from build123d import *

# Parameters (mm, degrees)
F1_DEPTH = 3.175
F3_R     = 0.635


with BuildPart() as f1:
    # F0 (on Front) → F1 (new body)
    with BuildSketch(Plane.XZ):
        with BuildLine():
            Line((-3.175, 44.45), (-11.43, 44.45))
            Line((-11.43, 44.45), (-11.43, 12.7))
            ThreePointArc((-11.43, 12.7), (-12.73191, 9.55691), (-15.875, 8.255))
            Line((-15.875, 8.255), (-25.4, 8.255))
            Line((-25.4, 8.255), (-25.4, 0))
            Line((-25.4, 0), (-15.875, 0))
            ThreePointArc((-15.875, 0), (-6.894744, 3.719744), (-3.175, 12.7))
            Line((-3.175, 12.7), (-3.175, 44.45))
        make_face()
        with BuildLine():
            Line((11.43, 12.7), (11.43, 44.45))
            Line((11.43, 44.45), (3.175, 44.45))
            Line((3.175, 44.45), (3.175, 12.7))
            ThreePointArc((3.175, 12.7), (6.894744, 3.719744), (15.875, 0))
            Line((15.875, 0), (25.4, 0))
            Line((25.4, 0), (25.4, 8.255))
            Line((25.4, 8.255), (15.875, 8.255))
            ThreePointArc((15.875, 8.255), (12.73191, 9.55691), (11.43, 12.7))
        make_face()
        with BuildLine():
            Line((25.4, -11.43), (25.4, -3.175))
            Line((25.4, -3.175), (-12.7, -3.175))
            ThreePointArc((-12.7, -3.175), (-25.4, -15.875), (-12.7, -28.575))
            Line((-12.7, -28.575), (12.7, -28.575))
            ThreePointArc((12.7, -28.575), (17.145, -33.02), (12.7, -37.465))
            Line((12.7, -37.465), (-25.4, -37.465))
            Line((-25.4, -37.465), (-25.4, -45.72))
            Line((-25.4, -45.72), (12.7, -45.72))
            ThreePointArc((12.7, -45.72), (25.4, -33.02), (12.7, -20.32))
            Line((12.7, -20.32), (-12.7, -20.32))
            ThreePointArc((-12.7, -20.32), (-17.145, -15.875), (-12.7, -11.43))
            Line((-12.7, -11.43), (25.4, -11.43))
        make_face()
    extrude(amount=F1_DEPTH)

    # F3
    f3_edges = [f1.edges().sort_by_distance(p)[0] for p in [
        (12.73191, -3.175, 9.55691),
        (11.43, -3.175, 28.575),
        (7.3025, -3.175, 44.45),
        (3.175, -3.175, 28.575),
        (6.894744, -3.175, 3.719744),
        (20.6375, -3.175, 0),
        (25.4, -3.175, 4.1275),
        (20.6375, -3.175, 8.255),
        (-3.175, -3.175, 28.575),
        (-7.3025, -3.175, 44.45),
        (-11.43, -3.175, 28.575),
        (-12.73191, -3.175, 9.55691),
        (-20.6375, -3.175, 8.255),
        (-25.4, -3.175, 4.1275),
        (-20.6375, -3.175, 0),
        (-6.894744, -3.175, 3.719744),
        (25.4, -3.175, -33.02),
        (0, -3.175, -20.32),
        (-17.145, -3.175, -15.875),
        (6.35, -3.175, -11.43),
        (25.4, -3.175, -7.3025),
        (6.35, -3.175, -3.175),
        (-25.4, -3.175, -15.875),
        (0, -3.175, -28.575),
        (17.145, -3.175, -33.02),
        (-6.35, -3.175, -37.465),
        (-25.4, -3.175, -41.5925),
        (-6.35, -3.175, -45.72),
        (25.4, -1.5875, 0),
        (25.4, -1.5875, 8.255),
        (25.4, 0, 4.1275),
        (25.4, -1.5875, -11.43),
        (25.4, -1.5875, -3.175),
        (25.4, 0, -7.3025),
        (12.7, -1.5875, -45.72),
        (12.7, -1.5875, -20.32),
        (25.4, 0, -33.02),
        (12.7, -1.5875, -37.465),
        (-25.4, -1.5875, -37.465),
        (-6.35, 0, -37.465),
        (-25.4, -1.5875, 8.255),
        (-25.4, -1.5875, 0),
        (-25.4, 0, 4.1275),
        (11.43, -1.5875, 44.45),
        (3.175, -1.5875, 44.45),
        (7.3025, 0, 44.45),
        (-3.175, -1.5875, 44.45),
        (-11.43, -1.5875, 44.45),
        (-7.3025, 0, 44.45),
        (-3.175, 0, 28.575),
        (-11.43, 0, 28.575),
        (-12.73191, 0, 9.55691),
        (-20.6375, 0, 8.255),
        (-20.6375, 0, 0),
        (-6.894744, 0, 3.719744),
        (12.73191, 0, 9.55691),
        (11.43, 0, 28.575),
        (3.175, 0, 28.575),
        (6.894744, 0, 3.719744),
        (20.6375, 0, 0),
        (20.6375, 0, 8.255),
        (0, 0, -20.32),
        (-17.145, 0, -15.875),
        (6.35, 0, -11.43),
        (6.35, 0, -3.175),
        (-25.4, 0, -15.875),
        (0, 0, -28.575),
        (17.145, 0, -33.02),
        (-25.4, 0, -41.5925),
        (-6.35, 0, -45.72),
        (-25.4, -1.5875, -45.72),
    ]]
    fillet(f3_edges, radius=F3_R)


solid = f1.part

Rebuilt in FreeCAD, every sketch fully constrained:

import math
import FreeCAD as App
import Part
import Sketcher
Q = App.Units.Quantity

doc = App.newDocument("Part")
body = doc.addObject("PartDesign::Body", "Body")
body.AllowCompound = True

# Sketch on XZ plane
sketch1 = body.newObject("Sketcher::SketchObject", "Sketch")
sketch1.AttachmentSupport = (doc.getObject("XZ_Plane"), [""])
sketch1.MapMode = "FlatFace"
sketch1.addGeometry([
    Part.LineSegment(App.Vector(-3.175, 44.45, 0), App.Vector(-11.43, 44.45, 0)),  # 0
    Part.LineSegment(App.Vector(-11.43, 44.45, 0), App.Vector(-11.43, 12.7, 0)),  # 1
    Part.ArcOfCircle(Part.Circle(App.Vector(-15.874999, 12.699999, 0), App.Vector(0, 0, 1), 4.444999), math.radians(-90.000016), math.radians(0.000016)),  # 2
    Part.LineSegment(App.Vector(-15.875, 8.255, 0), App.Vector(-25.4, 8.255, 0)),  # 3
    Part.LineSegment(App.Vector(-25.4, 8.255, 0), App.Vector(-25.4, 0, 0)),  # 4
    Part.LineSegment(App.Vector(-25.4, 0, 0), App.Vector(-15.875, 0, 0)),  # 5
    Part.ArcOfCircle(Part.Circle(App.Vector(-15.875, 12.7, 0), App.Vector(0, 0, 1), 12.7), math.radians(-89.999998), math.radians(-0.000002)),  # 6
    Part.LineSegment(App.Vector(-3.175, 12.7, 0), App.Vector(-3.175, 44.45, 0)),  # 7
    Part.LineSegment(App.Vector(11.43, 12.7, 0), App.Vector(11.43, 44.45, 0)),  # 8
    Part.LineSegment(App.Vector(11.43, 44.45, 0), App.Vector(3.175, 44.45, 0)),  # 9
    Part.LineSegment(App.Vector(3.175, 44.45, 0), App.Vector(3.175, 12.7, 0)),  # 10
    Part.ArcOfCircle(Part.Circle(App.Vector(15.875, 12.7, 0), App.Vector(0, 0, 1), 12.7), math.radians(-179.999998), math.radians(-90.000002)),  # 11
    Part.LineSegment(App.Vector(15.875, 0, 0), App.Vector(25.4, 0, 0)),  # 12
    Part.LineSegment(App.Vector(25.4, 0, 0), App.Vector(25.4, 8.255, 0)),  # 13
    Part.LineSegment(App.Vector(25.4, 8.255, 0), App.Vector(15.875, 8.255, 0)),  # 14
    Part.ArcOfCircle(Part.Circle(App.Vector(15.874999, 12.699999, 0), App.Vector(0, 0, 1), 4.444999), math.radians(179.999984), math.radians(270.000016)),  # 15
    Part.LineSegment(App.Vector(25.4, -11.43, 0), App.Vector(25.4, -3.175, 0)),  # 16
    Part.LineSegment(App.Vector(25.4, -3.175, 0), App.Vector(-12.7, -3.175, 0)),  # 17
    Part.ArcOfCircle(Part.Circle(App.Vector(-12.7, -15.875, 0), App.Vector(0, 0, 1), 12.7), math.radians(90), math.radians(270)),  # 18
    Part.LineSegment(App.Vector(-12.7, -28.575, 0), App.Vector(12.7, -28.575, 0)),  # 19
    Part.ArcOfCircle(Part.Circle(App.Vector(12.7, -33.02, 0), App.Vector(0, 0, 1), 4.445), math.radians(-90), math.radians(90)),  # 20
    Part.LineSegment(App.Vector(12.7, -37.465, 0), App.Vector(-25.4, -37.465, 0)),  # 21
    Part.LineSegment(App.Vector(-25.4, -37.465, 0), App.Vector(-25.4, -45.72, 0)),  # 22
    Part.LineSegment(App.Vector(-25.4, -45.72, 0), App.Vector(12.7, -45.72, 0)),  # 23
    Part.ArcOfCircle(Part.Circle(App.Vector(12.7, -33.02, 0), App.Vector(0, 0, 1), 12.7), math.radians(-90), math.radians(90)),  # 24
    Part.LineSegment(App.Vector(12.7, -20.32, 0), App.Vector(-12.7, -20.32, 0)),  # 25
    Part.ArcOfCircle(Part.Circle(App.Vector(-12.7, -15.875, 0), App.Vector(0, 0, 1), 4.445), math.radians(90), math.radians(270)),  # 26
    Part.LineSegment(App.Vector(-12.7, -11.43, 0), App.Vector(25.4, -11.43, 0)),  # 27
], False)
sketch1.addConstraint([
    Sketcher.Constraint("Coincident", 0, 2, 1, 1),
    Sketcher.Constraint("Tangent", 1, 2, 2, 2),
    Sketcher.Constraint("Tangent", 2, 1, 3, 1),
    Sketcher.Constraint("Coincident", 3, 2, 4, 1),
    Sketcher.Constraint("Coincident", 4, 2, 5, 1),
    Sketcher.Constraint("Tangent", 5, 2, 6, 1),
    Sketcher.Constraint("Tangent", 6, 2, 7, 1),
    Sketcher.Constraint("Coincident", 7, 2, 0, 1),
    Sketcher.Constraint("Coincident", 8, 2, 9, 1),
    Sketcher.Constraint("Coincident", 9, 2, 10, 1),
    Sketcher.Constraint("Tangent", 10, 2, 11, 1),
    Sketcher.Constraint("Tangent", 11, 2, 12, 1),
    Sketcher.Constraint("Coincident", 12, 2, 13, 1),
    Sketcher.Constraint("Coincident", 13, 2, 14, 1),
    Sketcher.Constraint("Tangent", 14, 2, 15, 2),
    Sketcher.Constraint("Tangent", 15, 1, 8, 1),
    Sketcher.Constraint("Coincident", 16, 2, 17, 1),
    Sketcher.Constraint("Tangent", 17, 2, 18, 1),
    Sketcher.Constraint("Tangent", 18, 2, 19, 1),
    Sketcher.Constraint("Tangent", 19, 2, 20, 2),
    Sketcher.Constraint("Tangent", 20, 1, 21, 1),
    Sketcher.Constraint("Coincident", 21, 2, 22, 1),
    Sketcher.Constraint("Coincident", 22, 2, 23, 1),
    Sketcher.Constraint("Tangent", 23, 2, 24, 1),
    Sketcher.Constraint("Tangent", 24, 2, 25, 1),
    Sketcher.Constraint("Tangent", 25, 2, 26, 2),
    Sketcher.Constraint("Tangent", 26, 1, 27, 1),
    Sketcher.Constraint("Coincident", 27, 2, 16, 1),
    Sketcher.Constraint("Horizontal", 0),
    Sketcher.Constraint("Vertical", 1),
    Sketcher.Constraint("Horizontal", 3),
    Sketcher.Constraint("Vertical", 4),
    Sketcher.Constraint("Horizontal", 5),
    Sketcher.Constraint("Vertical", 7),
    Sketcher.Constraint("Vertical", 8),
    Sketcher.Constraint("Horizontal", 9),
    Sketcher.Constraint("Vertical", 10),
    Sketcher.Constraint("Horizontal", 12),
    Sketcher.Constraint("Vertical", 13),
    Sketcher.Constraint("Horizontal", 14),
    Sketcher.Constraint("Vertical", 16),
    Sketcher.Constraint("Horizontal", 17),
    Sketcher.Constraint("Horizontal", 19),
    Sketcher.Constraint("Horizontal", 21),
    Sketcher.Constraint("Vertical", 22),
    Sketcher.Constraint("Horizontal", 23),
    Sketcher.Constraint("Horizontal", 25),
    Sketcher.Constraint("Horizontal", 27),
    Sketcher.Constraint("Coincident", 6, 3, 2, 3),
    Sketcher.Constraint("Coincident", 15, 3, 11, 3),
    Sketcher.Constraint("Coincident", 24, 3, 20, 3),
    Sketcher.Constraint("Coincident", 26, 3, 18, 3),
    Sketcher.Constraint("Equal", 6, 11),
    Sketcher.Constraint("Equal", 2, 15),
    Sketcher.Constraint("Equal", 11, 18),
    Sketcher.Constraint("Equal", 15, 20),
    Sketcher.Constraint("Equal", 18, 24),
    Sketcher.Constraint("Symmetric", 5, 2, 11, 2, -1, 1),
    Sketcher.Constraint("Symmetric", 4, 2, 12, 2, -2),
    Sketcher.Constraint("Horizontal", 7, 2, 8, 2),
    Sketcher.Constraint("Vertical", 13, 2, 16, 2),
    Sketcher.Constraint("Vertical", 4, 2, 21, 2),
    Sketcher.Constraint("Equal", 17, 21),
    Sketcher.Constraint("Radius", 6, Q("0.5 in")),
    Sketcher.Constraint("DistanceX", 19, 1, 19, 2, Q("1 in")),
    Sketcher.Constraint("DistanceX", 17, 2, 17, 1, Q("1.5 in")),
    Sketcher.Constraint("Radius", 2, Q("0.175 in")),
    Sketcher.Constraint("DistanceY", 1, 2, 1, 1, Q("1.25 in")),
    Sketcher.Constraint("DistanceY", 20, 3, -1, 1, Q("1.3 in")),
    Sketcher.Constraint("DistanceX", 0, 2, 8, 2, Q("0.9 in")),
])
pad1 = body.newObject("PartDesign::Pad", "Pad")
pad1.Profile = sketch1
pad1.Length = Q("0.125 in")
doc.recompute()

fillet = body.newObject("PartDesign::Fillet", "Fillet")
fillet.Base = (pad1, ["Edge1"])
fillet.UseAllEdges = True
fillet.Radius = Q("0.025 in")

doc.recompute()
